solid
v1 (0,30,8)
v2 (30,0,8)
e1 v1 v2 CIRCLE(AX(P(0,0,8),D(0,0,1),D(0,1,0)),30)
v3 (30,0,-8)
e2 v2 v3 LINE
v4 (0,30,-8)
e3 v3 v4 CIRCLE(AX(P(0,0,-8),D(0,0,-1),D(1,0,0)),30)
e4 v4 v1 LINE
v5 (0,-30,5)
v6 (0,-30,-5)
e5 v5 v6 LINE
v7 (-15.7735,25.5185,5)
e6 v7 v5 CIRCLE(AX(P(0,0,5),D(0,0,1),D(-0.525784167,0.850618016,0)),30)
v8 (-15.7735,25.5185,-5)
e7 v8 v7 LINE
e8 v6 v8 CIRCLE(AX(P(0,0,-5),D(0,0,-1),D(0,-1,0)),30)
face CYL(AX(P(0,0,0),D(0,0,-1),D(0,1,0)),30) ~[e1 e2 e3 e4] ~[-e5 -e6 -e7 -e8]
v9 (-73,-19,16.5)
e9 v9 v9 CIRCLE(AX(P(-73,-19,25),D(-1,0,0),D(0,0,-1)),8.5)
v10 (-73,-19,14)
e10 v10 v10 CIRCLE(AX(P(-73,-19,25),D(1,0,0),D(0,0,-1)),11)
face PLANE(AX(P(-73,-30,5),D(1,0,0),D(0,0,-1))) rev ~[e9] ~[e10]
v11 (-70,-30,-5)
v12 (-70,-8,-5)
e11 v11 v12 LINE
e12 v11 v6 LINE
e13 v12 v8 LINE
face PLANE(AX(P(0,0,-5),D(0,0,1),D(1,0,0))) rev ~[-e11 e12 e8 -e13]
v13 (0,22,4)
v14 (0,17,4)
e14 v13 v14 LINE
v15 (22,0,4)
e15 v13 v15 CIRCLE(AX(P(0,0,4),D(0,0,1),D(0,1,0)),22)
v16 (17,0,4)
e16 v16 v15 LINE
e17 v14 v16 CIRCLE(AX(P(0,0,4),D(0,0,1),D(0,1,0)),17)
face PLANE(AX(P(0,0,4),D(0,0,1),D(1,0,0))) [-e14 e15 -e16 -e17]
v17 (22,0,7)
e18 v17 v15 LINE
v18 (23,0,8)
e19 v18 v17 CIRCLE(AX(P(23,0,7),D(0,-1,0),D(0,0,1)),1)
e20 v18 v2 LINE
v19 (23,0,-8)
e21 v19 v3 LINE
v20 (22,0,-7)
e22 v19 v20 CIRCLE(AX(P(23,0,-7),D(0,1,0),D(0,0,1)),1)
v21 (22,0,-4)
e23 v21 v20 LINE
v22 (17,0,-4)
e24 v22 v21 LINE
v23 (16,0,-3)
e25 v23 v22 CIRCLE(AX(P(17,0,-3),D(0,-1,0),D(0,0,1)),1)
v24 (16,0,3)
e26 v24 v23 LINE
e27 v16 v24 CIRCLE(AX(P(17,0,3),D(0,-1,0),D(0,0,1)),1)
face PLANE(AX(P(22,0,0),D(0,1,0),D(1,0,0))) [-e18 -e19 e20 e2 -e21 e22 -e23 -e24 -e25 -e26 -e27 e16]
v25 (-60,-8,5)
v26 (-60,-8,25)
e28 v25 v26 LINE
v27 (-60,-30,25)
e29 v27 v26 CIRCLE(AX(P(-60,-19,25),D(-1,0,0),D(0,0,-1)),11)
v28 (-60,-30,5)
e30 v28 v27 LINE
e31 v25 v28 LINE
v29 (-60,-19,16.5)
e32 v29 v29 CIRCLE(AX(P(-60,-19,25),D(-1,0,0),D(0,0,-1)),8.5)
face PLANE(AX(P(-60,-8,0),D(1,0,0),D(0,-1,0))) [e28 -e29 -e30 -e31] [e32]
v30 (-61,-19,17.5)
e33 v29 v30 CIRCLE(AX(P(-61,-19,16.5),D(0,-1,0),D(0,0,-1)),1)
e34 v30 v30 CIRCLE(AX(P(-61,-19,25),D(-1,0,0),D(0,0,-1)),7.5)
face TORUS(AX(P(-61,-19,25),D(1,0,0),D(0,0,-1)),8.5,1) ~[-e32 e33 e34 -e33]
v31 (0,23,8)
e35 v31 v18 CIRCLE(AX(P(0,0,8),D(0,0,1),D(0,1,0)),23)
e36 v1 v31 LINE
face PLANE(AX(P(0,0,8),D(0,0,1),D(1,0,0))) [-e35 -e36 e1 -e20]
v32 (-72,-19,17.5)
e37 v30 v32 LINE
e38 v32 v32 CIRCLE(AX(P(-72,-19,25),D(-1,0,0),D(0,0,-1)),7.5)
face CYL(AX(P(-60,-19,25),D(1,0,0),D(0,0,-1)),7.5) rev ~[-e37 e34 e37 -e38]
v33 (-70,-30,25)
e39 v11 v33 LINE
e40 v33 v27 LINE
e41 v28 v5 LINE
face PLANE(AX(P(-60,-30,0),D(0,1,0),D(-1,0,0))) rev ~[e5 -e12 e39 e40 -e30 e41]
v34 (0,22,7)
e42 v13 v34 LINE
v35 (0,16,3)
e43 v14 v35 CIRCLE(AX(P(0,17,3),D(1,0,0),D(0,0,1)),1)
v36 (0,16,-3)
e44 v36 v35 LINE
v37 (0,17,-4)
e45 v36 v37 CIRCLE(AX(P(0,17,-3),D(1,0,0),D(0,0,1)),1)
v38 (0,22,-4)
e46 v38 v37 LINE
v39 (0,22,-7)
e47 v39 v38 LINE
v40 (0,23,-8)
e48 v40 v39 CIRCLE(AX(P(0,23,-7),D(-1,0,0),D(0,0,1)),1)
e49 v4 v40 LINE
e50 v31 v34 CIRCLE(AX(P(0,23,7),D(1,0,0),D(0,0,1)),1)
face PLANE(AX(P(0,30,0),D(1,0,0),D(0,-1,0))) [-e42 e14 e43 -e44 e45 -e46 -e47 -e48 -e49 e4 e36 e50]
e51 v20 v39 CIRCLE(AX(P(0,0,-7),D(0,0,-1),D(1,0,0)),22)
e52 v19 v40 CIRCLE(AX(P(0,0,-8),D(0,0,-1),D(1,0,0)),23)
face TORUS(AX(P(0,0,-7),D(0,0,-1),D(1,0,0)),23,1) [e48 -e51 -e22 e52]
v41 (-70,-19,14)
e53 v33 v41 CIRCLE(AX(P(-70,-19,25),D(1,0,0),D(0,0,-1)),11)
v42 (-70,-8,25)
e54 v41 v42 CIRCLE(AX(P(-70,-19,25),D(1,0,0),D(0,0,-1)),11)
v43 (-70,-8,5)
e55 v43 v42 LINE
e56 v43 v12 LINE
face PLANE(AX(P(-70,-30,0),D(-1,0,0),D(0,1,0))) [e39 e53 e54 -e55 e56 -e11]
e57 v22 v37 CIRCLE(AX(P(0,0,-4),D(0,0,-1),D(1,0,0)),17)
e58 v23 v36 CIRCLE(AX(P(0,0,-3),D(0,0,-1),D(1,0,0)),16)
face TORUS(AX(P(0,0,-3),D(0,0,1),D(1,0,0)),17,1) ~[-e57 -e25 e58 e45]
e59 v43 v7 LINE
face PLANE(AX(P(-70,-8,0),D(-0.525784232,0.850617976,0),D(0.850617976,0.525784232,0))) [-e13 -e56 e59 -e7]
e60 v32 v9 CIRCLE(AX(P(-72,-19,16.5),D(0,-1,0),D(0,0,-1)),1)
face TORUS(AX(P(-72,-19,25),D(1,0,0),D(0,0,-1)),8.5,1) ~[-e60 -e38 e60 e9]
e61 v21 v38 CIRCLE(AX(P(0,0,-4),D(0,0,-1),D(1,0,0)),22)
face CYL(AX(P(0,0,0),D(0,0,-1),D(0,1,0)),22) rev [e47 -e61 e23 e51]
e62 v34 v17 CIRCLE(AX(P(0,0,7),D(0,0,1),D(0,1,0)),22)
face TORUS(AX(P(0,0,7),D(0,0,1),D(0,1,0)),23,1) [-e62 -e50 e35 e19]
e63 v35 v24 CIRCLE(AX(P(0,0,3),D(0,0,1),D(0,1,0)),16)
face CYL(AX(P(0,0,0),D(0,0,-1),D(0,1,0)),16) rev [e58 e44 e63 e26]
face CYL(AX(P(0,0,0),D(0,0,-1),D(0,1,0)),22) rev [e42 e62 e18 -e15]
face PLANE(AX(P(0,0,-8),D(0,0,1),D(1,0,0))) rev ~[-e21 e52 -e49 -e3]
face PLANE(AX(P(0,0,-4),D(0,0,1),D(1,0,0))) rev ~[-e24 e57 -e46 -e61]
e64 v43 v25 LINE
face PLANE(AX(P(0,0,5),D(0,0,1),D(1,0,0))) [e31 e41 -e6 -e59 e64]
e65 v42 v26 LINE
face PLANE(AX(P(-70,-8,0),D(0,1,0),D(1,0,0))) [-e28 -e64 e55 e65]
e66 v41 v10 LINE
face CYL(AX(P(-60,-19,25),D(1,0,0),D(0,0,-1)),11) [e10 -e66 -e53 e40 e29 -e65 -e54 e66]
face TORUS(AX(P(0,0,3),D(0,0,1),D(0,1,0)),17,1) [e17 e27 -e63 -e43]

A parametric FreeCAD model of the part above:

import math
import FreeCAD as App
import Part
import Sketcher

V = App.Vector
Q = App.Units.Quantity


def edges_at(feature, points):
    """Names of the edges that pass closest to the given points."""
    edges = feature.Shape.Edges
    near = lambda p: min(range(len(edges)), key=lambda i: edges[i].distToShape(Part.Vertex(*p))[0])
    return sorted({f"Edge{near(p) + 1}" for p in points})

doc = App.newDocument("Part")
body = doc.addObject("PartDesign::Body", "Body")

# Sketch on XY plane
sketch1 = doc.addObject("Sketcher::SketchObject", "Sketch")
body.addObject(sketch1)
sketch1.AttachmentSupport = (doc.XY_Plane, [""])
sketch1.MapMode = "FlatFace"
sketch1.addGeometry(Part.LineSegment(V(0, 16, 0), V(0, 22, 0)), False)
sketch1.addGeometry(Part.ArcOfCircle(Part.Circle(V(0, 0, 0), V(0, 0, 1), 22), math.radians(90), math.radians(360)), False)
sketch1.addGeometry(Part.LineSegment(V(22, 0, 0), V(16, 0, 0)), False)
sketch1.addGeometry(Part.ArcOfCircle(Part.Circle(V(0, 0, 0), V(0, 0, 1), 16), math.radians(90), math.radians(360)), False)
sketch1.addConstraint(Sketcher.Constraint("Coincident", 0, 2, 1, 1))
sketch1.addConstraint(Sketcher.Constraint("Coincident", 1, 2, 2, 1))
sketch1.addConstraint(Sketcher.Constraint("Coincident", 2, 2, 3, 2))
sketch1.addConstraint(Sketcher.Constraint("Coincident", 3, 1, 0, 1))
sketch1.addConstraint(Sketcher.Constraint("Vertical", 0))
sketch1.addConstraint(Sketcher.Constraint("Horizontal", 2))
sketch1.addConstraint(Sketcher.Constraint("Coincident", 1, 3, -1, 1))
sketch1.addConstraint(Sketcher.Constraint("Coincident", 3, 3, -1, 1))
sketch1.addConstraint(Sketcher.Constraint("PointOnObject", 0, 2, -2))
sketch1.addConstraint(Sketcher.Constraint("PointOnObject", 1, 2, -1))
sketch1.addConstraint(Sketcher.Constraint("Radius", 1, Q("22 mm")))
sketch1.addConstraint(Sketcher.Constraint("Radius", 3, Q("16 mm")))
pad1 = doc.addObject("PartDesign::Pad", "Pad")
body.addObject(pad1)
pad1.Profile = sketch1
pad1.Length = 8
pad1.Midplane = True

# Sketch on XY plane
sketch2 = doc.addObject("Sketcher::SketchObject", "Sketch001")
body.addObject(sketch2)
sketch2.AttachmentSupport = (doc.XY_Plane, [""])
sketch2.MapMode = "FlatFace"
sketch2.addGeometry(Part.LineSegment(V(0, 22, 0), V(0, 30, 0)), False)
sketch2.addGeometry(Part.ArcOfCircle(Part.Circle(V(0, 0, 0), V(0, 0, 1), 30), math.radians(90), math.radians(360)), False)
sketch2.addGeometry(Part.LineSegment(V(30, 0, 0), V(22, 0, 0)), False)
sketch2.addGeometry(Part.ArcOfCircle(Part.Circle(V(0, 0, 0), V(0, 0, 1), 22), math.radians(90), math.radians(360)), False)
sketch2.addConstraint(Sketcher.Constraint("Coincident", 0, 2, 1, 1))
sketch2.addConstraint(Sketcher.Constraint("Coincident", 1, 2, 2, 1))
sketch2.addConstraint(Sketcher.Constraint("Coincident", 2, 2, 3, 2))
sketch2.addConstraint(Sketcher.Constraint("Coincident", 3, 1, 0, 1))
sketch2.addConstraint(Sketcher.Constraint("Vertical", 0))
sketch2.addConstraint(Sketcher.Constraint("Horizontal", 2))
sketch2.addConstraint(Sketcher.Constraint("Coincident", 1, 3, -1, 1))
sketch2.addConstraint(Sketcher.Constraint("Coincident", 3, 3, -1, 1))
sketch2.addConstraint(Sketcher.Constraint("PointOnObject", 0, 2, -2))
sketch2.addConstraint(Sketcher.Constraint("PointOnObject", 1, 2, -1))
sketch2.addConstraint(Sketcher.Constraint("Radius", 1, Q("30 mm")))
sketch2.addConstraint(Sketcher.Constraint("Radius", 3, Q("22 mm")))
pad2 = doc.addObject("PartDesign::Pad", "Pad001")
body.addObject(pad2)
pad2.Profile = sketch2
pad2.Length = 16
pad2.Midplane = True

# Sketch on XY plane
sketch3 = doc.addObject("Sketcher::SketchObject", "Sketch002")
body.addObject(sketch3)
sketch3.AttachmentSupport = (doc.XY_Plane, [""])
sketch3.MapMode = "FlatFace"
sketch3.addGeometry(Part.ArcOfCircle(Part.Circle(V(0, 0, 0), V(0, 0, 1), 30), math.radians(121.721048), math.radians(270)), False)
sketch3.addGeometry(Part.LineSegment(V(-15.7735, 25.5185, 0), V(-70, -8, 0)), False)
sketch3.addGeometry(Part.LineSegment(V(-70, -8, 0), V(-60, -8, 0)), False)
sketch3.addGeometry(Part.LineSegment(V(-60, -8, 0), V(-60, -30, 0)), False)
sketch3.addGeometry(Part.LineSegment(V(-60, -30, 0), V(0, -30, 0)), False)
sketch3.addConstraint(Sketcher.Constraint("Tangent", 0, 1, 1, 1))
sketch3.addConstraint(Sketcher.Constraint("Coincident", 1, 2, 2, 1))
sketch3.addConstraint(Sketcher.Constraint("Coincident", 2, 2, 3, 1))
sketch3.addConstraint(Sketcher.Constraint("Coincident", 3, 2, 4, 1))
sketch3.addConstraint(Sketcher.Constraint("Tangent", 4, 2, 0, 2))
sketch3.addConstraint(Sketcher.Constraint("Horizontal", 2))
sketch3.addConstraint(Sketcher.Constraint("Vertical", 3))
sketch3.addConstraint(Sketcher.Constraint("Horizontal", 4))
sketch3.addConstraint(Sketcher.Constraint("Coincident", 0, 3, -1, 1))
sketch3.addConstraint(Sketcher.Constraint("Radius", 0, Q("30 mm")))
sketch3.addConstraint(Sketcher.Constraint("DistanceX", 2, 1, 2, 2, Q("10 mm")))
sketch3.addConstraint(Sketcher.Constraint("DistanceX", 4, 1, 4, 2, Q("60 mm")))
sketch3.addConstraint(Sketcher.Constraint("DistanceY", 3, 2, 3, 1, Q("22 mm")))
pad3 = doc.addObject("PartDesign::Pad", "Pad002")
body.addObject(pad3)
pad3.Profile = sketch3
pad3.Length = 10
pad3.Midplane = True

# Sketch on XY plane
sketch4 = doc.addObject("Sketcher::SketchObject", "Sketch003")
body.addObject(sketch4)
sketch4.AttachmentSupport = (doc.XY_Plane, [""])
sketch4.MapMode = "FlatFace"
sketch4.addGeometry(Part.LineSegment(V(-60, -8, 0), V(-70, -8, 0)), False)
sketch4.addGeometry(Part.LineSegment(V(-70, -8, 0), V(-70, -30, 0)), False)
sketch4.addGeometry(Part.LineSegment(V(-70, -30, 0), V(-60, -30, 0)), False)
sketch4.addGeometry(Part.LineSegment(V(-60, -30, 0), V(-60, -8, 0)), False)
sketch4.addConstraint(Sketcher.Constraint("Coincident", 0, 2, 1, 1))
sketch4.addConstraint(Sketcher.Constraint("Coincident", 1, 2, 2, 1))
sketch4.addConstraint(Sketcher.Constraint("Coincident", 2, 2, 3, 1))
sketch4.addConstraint(Sketcher.Constraint("Coincident", 3, 2, 0, 1))
sketch4.addConstraint(Sketcher.Constraint("Horizontal", 0))
sketch4.addConstraint(Sketcher.Constraint("Vertical", 1))
sketch4.addConstraint(Sketcher.Constraint("Horizontal", 2))
sketch4.addConstraint(Sketcher.Constraint("Vertical", 3))
sketch4.addConstraint(Sketcher.Constraint("DistanceX", 0, 2, 0, 1, Q("10 mm")))
sketch4.addConstraint(Sketcher.Constraint("DistanceY", 1, 2, 1, 1, Q("22 mm")))
sketch4.addConstraint(Sketcher.Constraint("DistanceX", 0, 2, -1, 1, Q("70 mm")))
sketch4.addConstraint(Sketcher.Constraint("DistanceY", 0, 2, -1, 1, Q("8 mm")))
pad4 = doc.addObject("PartDesign::Pad", "Pad003")
body.addObject(pad4)
pad4.Profile = sketch4
pad4.Length = 5
pad4.Reversed = True

# Sketch on XY plane
sketch5 = doc.addObject("Sketcher::SketchObject", "Sketch004")
body.addObject(sketch5)
sketch5.AttachmentSupport = (doc.XY_Plane, [""])
sketch5.MapMode = "FlatFace"
sketch5.addGeometry(Part.LineSegment(V(-60, -8, 0), V(-70, -8, 0)), False)
sketch5.addGeometry(Part.LineSegment(V(-70, -8, 0), V(-70, -30, 0)), False)
sketch5.addGeometry(Part.LineSegment(V(-70, -30, 0), V(-60, -30, 0)), False)
sketch5.addGeometry(Part.LineSegment(V(-60, -30, 0), V(-60, -8, 0)), False)
sketch5.addConstraint(Sketcher.Constraint("Coincident", 0, 2, 1, 1))
sketch5.addConstraint(Sketcher.Constraint("Coincident", 1, 2, 2, 1))
sketch5.addConstraint(Sketcher.Constraint("Coincident", 2, 2, 3, 1))
sketch5.addConstraint(Sketcher.Constraint("Coincident", 3, 2, 0, 1))
sketch5.addConstraint(Sketcher.Constraint("Horizontal", 0))
sketch5.addConstraint(Sketcher.Constraint("Vertical", 1))
sketch5.addConstraint(Sketcher.Constraint("Horizontal", 2))
sketch5.addConstraint(Sketcher.Constraint("Vertical", 3))
sketch5.addConstraint(Sketcher.Constraint("DistanceX", 0, 2, 0, 1, Q("10 mm")))
sketch5.addConstraint(Sketcher.Constraint("DistanceY", 1, 2, 1, 1, Q("22 mm")))
sketch5.addConstraint(Sketcher.Constraint("DistanceX", 0, 2, -1, 1, Q("70 mm")))
sketch5.addConstraint(Sketcher.Constraint("DistanceY", 0, 2, -1, 1, Q("8 mm")))
pad5 = doc.addObject("PartDesign::Pad", "Pad004")
body.addObject(pad5)
pad5.Profile = sketch5
pad5.Length = 25

# Sketch on YZ plane
sketch6 = doc.addObject("Sketcher::SketchObject", "Sketch005")
body.addObject(sketch6)
sketch6.AttachmentSupport = (doc.YZ_Plane, [""])
sketch6.MapMode = "FlatFace"
sketch6.AttachmentOffset = App.Placement(V(0, 0, -60), App.Rotation())
sketch6.addGeometry(Part.Circle(V(-19, 25, 0), V(0, 0, 1), 11), False)
sketch6.addGeometry(Part.Circle(V(-19, 25, 0), V(0, 0, 1), 7.5), False)
sketch6.addConstraint(Sketcher.Constraint("Coincident", 1, 3, 0, 3))
sketch6.addConstraint(Sketcher.Constraint("Diameter", 0, Q("22 mm")))
sketch6.addConstraint(Sketcher.Constraint("Diameter", 1, Q("15 mm")))
sketch6.addConstraint(Sketcher.Constraint("DistanceX", 0, 3, -1, 1, Q("19 mm")))
sketch6.addConstraint(Sketcher.Constraint("DistanceY", -1, 1, 0, 3, Q("25 mm")))
pad6 = doc.addObject("PartDesign::Pad", "Pad005")
body.addObject(pad6)
pad6.Profile = sketch6
pad6.Length = 13
pad6.Reversed = True

# Sketch on YZ plane
sketch7 = doc.addObject("Sketcher::SketchObject", "Sketch006")
body.addObject(sketch7)
sketch7.AttachmentSupport = (doc.YZ_Plane, [""])
sketch7.MapMode = "FlatFace"
sketch7.AttachmentOffset = App.Placement(V(0, 0, -60), App.Rotation())
sketch7.addGeometry(Part.ArcOfCircle(Part.Circle(V(-19, 25, 0), V(0, 0, 1), 7.5), math.radians(180), math.radians(360)), False)
sketch7.addGeometry(Part.LineSegment(V(-11.5, 25, 0), V(-26.5, 25, 0)), False)
sketch7.addConstraint(Sketcher.Constraint("Coincident", 0, 1, 1, 2))
sketch7.addConstraint(Sketcher.Constraint("Coincident", 1, 1, 0, 2))
sketch7.addConstraint(Sketcher.Constraint("Horizontal", 1))
sketch7.addConstraint(Sketcher.Constraint("Radius", 0, Q("7.5 mm")))
sketch7.addConstraint(Sketcher.Constraint("DistanceX", 0, 3, -1, 1, Q("19 mm")))
sketch7.addConstraint(Sketcher.Constraint("DistanceY", -1, 1, 0, 3, Q("25 mm")))
sketch7.addConstraint(Sketcher.Constraint("DistanceY", -1, 1, 0, 1, Q("25 mm")))
pocket1 = doc.addObject("PartDesign::Pocket", "Pocket")
body.addObject(pocket1)
pocket1.Profile = sketch7
pocket1.Length = 13
doc.recompute()

fillet = doc.addObject("PartDesign::Fillet", "Fillet")
body.addObject(fillet)
fillet.Base = (pocket1, edges_at(pocket1, [
    (-11.314, -11.314, 4),
    (-15.556, -15.556, 8),
    (-60, -11.5, 25),
    (-11.314, -11.314, -4),
    (-15.556, -15.556, -8),
    (-73, -19, 32.5),
]))
fillet.Radius = 1

doc.recompute()
